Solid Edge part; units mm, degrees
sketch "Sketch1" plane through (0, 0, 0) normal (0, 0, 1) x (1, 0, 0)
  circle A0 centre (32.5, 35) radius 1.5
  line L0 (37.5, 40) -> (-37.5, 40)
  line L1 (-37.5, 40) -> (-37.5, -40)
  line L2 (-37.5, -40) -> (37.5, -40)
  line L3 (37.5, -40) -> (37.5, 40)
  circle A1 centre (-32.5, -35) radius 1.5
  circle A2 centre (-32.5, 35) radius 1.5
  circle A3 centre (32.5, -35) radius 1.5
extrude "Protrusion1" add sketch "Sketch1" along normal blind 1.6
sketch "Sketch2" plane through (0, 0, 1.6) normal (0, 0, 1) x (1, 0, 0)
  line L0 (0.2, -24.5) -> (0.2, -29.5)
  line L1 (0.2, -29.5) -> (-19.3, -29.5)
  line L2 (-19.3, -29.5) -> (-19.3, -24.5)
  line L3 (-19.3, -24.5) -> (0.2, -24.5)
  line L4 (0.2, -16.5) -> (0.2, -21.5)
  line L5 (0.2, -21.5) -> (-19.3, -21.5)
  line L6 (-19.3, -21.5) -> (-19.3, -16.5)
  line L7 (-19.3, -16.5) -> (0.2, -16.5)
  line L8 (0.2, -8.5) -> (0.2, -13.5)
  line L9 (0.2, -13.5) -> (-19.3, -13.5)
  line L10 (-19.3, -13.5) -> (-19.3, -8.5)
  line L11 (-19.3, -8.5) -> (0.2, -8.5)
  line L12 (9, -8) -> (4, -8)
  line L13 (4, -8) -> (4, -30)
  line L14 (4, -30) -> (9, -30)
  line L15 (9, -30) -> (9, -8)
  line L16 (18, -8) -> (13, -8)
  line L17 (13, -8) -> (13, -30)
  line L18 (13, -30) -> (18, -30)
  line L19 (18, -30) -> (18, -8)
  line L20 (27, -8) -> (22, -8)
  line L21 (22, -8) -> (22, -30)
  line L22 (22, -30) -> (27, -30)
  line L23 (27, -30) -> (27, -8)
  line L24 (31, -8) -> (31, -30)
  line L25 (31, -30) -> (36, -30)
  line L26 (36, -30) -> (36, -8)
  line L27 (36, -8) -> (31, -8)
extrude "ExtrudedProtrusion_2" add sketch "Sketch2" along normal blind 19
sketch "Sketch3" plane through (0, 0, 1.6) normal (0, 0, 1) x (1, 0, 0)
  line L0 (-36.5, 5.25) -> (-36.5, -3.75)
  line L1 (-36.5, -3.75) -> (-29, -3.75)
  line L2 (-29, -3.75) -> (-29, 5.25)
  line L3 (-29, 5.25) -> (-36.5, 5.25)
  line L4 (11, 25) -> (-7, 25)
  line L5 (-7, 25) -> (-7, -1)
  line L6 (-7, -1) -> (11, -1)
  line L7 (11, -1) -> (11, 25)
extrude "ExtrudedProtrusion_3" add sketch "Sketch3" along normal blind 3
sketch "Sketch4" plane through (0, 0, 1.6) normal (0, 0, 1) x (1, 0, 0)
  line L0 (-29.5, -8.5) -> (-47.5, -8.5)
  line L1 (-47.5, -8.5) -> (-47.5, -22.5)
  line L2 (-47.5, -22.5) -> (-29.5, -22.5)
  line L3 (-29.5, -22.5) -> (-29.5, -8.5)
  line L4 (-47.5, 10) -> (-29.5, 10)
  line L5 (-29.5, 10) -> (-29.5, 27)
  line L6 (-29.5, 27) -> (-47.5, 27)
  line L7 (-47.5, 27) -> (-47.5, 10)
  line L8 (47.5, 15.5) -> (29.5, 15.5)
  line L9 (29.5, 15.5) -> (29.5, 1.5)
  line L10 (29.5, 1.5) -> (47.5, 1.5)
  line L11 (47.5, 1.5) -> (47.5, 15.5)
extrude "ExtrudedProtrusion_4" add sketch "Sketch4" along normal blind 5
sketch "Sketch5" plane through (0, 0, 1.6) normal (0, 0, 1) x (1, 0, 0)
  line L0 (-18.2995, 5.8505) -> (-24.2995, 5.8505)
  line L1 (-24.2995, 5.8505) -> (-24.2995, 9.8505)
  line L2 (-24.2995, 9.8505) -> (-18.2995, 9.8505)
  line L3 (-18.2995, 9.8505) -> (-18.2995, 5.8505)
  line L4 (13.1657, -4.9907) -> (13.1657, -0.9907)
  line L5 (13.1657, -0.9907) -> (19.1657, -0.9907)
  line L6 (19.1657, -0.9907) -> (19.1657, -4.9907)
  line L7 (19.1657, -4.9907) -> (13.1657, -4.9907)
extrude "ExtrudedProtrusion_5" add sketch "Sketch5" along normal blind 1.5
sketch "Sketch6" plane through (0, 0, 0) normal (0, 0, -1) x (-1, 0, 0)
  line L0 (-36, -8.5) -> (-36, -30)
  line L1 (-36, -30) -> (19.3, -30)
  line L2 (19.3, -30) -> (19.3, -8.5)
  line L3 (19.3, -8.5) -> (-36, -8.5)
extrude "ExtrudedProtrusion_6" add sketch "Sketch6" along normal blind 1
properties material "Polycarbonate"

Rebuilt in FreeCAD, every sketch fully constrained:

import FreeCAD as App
import Part
import Sketcher

V = App.Vector

doc = App.newDocument("Part")
body = doc.addObject("PartDesign::Body", "Body")

# Sketch on XY plane
sketch1 = body.newObject("Sketcher::SketchObject", "Sketch")
sketch1.AttachmentSupport = (doc.getObject("XY_Plane"), [""])
sketch1.MapMode = "FlatFace"
sketch1.addGeometry(Part.LineSegment(V(37.5, -40, 0), V(37.5, 40, 0)), False)
sketch1.addGeometry(Part.LineSegment(V(37.5, 40, 0), V(-37.5, 40, 0)), False)
sketch1.addGeometry(Part.LineSegment(V(-37.5, 40, 0), V(-37.5, -40, 0)), False)
sketch1.addGeometry(Part.LineSegment(V(-37.5, -40, 0), V(37.5, -40, 0)), False)
sketch1.addGeometry(Part.Circle(V(-32.5, -35, 0), V(0, 0, 1), 1.5), False)
sketch1.addGeometry(Part.Circle(V(32.5, -35, 0), V(0, 0, 1), 1.5), False)
sketch1.addGeometry(Part.Circle(V(-32.5, 35, 0), V(0, 0, 1), 1.5), False)
sketch1.addGeometry(Part.Circle(V(32.5, 35, 0), V(0, 0, 1), 1.5), False)
sketch1.addConstraint(Sketcher.Constraint("Coincident", 0, 2, 1, 1))
sketch1.addConstraint(Sketcher.Constraint("Coincident", 1, 2, 2, 1))
sketch1.addConstraint(Sketcher.Constraint("Coincident", 2, 2, 3, 1))
sketch1.addConstraint(Sketcher.Constraint("Coincident", 3, 2, 0, 1))
sketch1.addConstraint(Sketcher.Constraint("Vertical", 0))
sketch1.addConstraint(Sketcher.Constraint("Horizontal", 1))
sketch1.addConstraint(Sketcher.Constraint("Vertical", 2))
sketch1.addConstraint(Sketcher.Constraint("Horizontal", 3))
sketch1.addConstraint(Sketcher.Constraint("Equal", 4, 5))
sketch1.addConstraint(Sketcher.Constraint("Equal", 5, 6))
sketch1.addConstraint(Sketcher.Constraint("Equal", 6, 7))
sketch1.addConstraint(Sketcher.Constraint("Symmetric", 5, 3, 6, 3, -1, 1))
sketch1.addConstraint(Sketcher.Constraint("Symmetric", 4, 3, 7, 3, -1, 1))
sketch1.addConstraint(Sketcher.Constraint("Symmetric", 0, 2, 2, 2, -1, 1))
sketch1.addConstraint(Sketcher.Constraint("Symmetric", 4, 3, 5, 3, -2))
sketch1.addConstraint(Sketcher.Constraint("Diameter", 4, 3.0))
sketch1.addConstraint(Sketcher.Constraint("DistanceX", 1, 2, 1, 1, 75.0))
sketch1.addConstraint(Sketcher.Constraint("DistanceY", 0, 1, 0, 2, 80.0))
sketch1.addConstraint(Sketcher.Constraint("DistanceY", 4, 3, -1, 1, 35.0))
sketch1.addConstraint(Sketcher.Constraint("DistanceX", 4, 3, 5, 3, 65.0))
pad1 = body.newObject("PartDesign::Pad", "Pad")
pad1.Profile = sketch1
pad1.Length = 1.6

# Sketch on XY plane
sketch2 = body.newObject("Sketcher::SketchObject", "Sketch001")
sketch2.AttachmentSupport = (doc.getObject("XY_Plane"), [""])
sketch2.MapMode = "FlatFace"
sketch2.AttachmentOffset = App.Placement(V(0, 0, 1.6), App.Rotation())
sketch2.addGeometry(Part.LineSegment(V(0, -30, 0), V(0, -24, 0)), False)
sketch2.addGeometry(Part.LineSegment(V(0, -24, 0), V(-19, -24, 0)), False)
sketch2.addGeometry(Part.LineSegment(V(-19, -24, 0), V(-19, -30, 0)), False)
sketch2.addGeometry(Part.LineSegment(V(-19, -30, 0), V(0, -30, 0)), False)
sketch2.addGeometry(Part.LineSegment(V(0, -22, 0), V(0, -16, 0)), False)
sketch2.addGeometry(Part.LineSegment(V(0, -16, 0), V(-19, -16, 0)), False)
sketch2.addGeometry(Part.LineSegment(V(-19, -16, 0), V(-19, -22, 0)), False)
sketch2.addGeometry(Part.LineSegment(V(-19, -22, 0), V(0, -22, 0)), False)
sketch2.addGeometry(Part.LineSegment(V(0, -14, 0), V(0, -8, 0)), False)
sketch2.addGeometry(Part.LineSegment(V(0, -8, 0), V(-19, -8, 0)), False)
sketch2.addGeometry(Part.LineSegment(V(-19, -8, 0), V(-19, -14, 0)), False)
sketch2.addGeometry(Part.LineSegment(V(-19, -14, 0), V(0, -14, 0)), False)
sketch2.addGeometry(Part.LineSegment(V(9, -30, 0), V(9, -8, 0)), False)
sketch2.addGeometry(Part.LineSegment(V(9, -8, 0), V(4, -8, 0)), False)
sketch2.addGeometry(Part.LineSegment(V(4, -8, 0), V(4, -30, 0)), False)
sketch2.addGeometry(Part.LineSegment(V(4, -30, 0), V(9, -30, 0)), False)
sketch2.addGeometry(Part.LineSegment(V(18, -30, 0), V(18, -8, 0)), False)
sketch2.addGeometry(Part.LineSegment(V(18, -8, 0), V(13, -8, 0)), False)
sketch2.addGeometry(Part.LineSegment(V(13, -8, 0), V(13, -30, 0)), False)
sketch2.addGeometry(Part.LineSegment(V(13, -30, 0), V(18, -30, 0)), False)
sketch2.addGeometry(Part.LineSegment(V(27, -30, 0), V(27, -8, 0)), False)
sketch2.addGeometry(Part.LineSegment(V(27, -8, 0), V(22, -8, 0)), False)
sketch2.addGeometry(Part.LineSegment(V(22, -8, 0), V(22, -30, 0)), False)
sketch2.addGeometry(Part.LineSegment(V(22, -30, 0), V(27, -30, 0)), False)
sketch2.addGeometry(Part.LineSegment(V(36, -8, 0), V(31, -8, 0)), False)
sketch2.addGeometry(Part.LineSegment(V(31, -8, 0), V(31, -30, 0)), False)
sketch2.addGeometry(Part.LineSegment(V(31, -30, 0), V(36, -30, 0)), False)
sketch2.addGeometry(Part.LineSegment(V(36, -30, 0), V(36, -8, 0)), False)
sketch2.addConstraint(Sketcher.Constraint("Coincident", 0, 2, 1, 1))
sketch2.addConstraint(Sketcher.Constraint("Coincident", 1, 2, 2, 1))
sketch2.addConstraint(Sketcher.Constraint("Coincident", 2, 2, 3, 1))
sketch2.addConstraint(Sketcher.Constraint("Coincident", 3, 2, 0, 1))
sketch2.addConstraint(Sketcher.Constraint("Coincident", 4, 2, 5, 1))
sketch2.addConstraint(Sketcher.Constraint("Coincident", 5, 2, 6, 1))
sketch2.addConstraint(Sketcher.Constraint("Coincident", 6, 2, 7, 1))
sketch2.addConstraint(Sketcher.Constraint("Coincident", 7, 2, 4, 1))
sketch2.addConstraint(Sketcher.Constraint("Coincident", 8, 2, 9, 1))
sketch2.addConstraint(Sketcher.Constraint("Coincident", 9, 2, 10, 1))
sketch2.addConstraint(Sketcher.Constraint("Coincident", 10, 2, 11, 1))
sketch2.addConstraint(Sketcher.Constraint("Coincident", 11, 2, 8, 1))
sketch2.addConstraint(Sketcher.Constraint("Coincident", 12, 2, 13, 1))
sketch2.addConstraint(Sketcher.Constraint("Coincident", 13, 2, 14, 1))
sketch2.addConstraint(Sketcher.Constraint("Coincident", 14, 2, 15, 1))
sketch2.addConstraint(Sketcher.Constraint("Coincident", 15, 2, 12, 1))
sketch2.addConstraint(Sketcher.Constraint("Coincident", 16, 2, 17, 1))
sketch2.addConstraint(Sketcher.Constraint("Coincident", 17, 2, 18, 1))
sketch2.addConstraint(Sketcher.Constraint("Coincident", 18, 2, 19, 1))
sketch2.addConstraint(Sketcher.Constraint("Coincident", 19, 2, 16, 1))
sketch2.addConstraint(Sketcher.Constraint("Coincident", 20, 2, 21, 1))
sketch2.addConstraint(Sketcher.Constraint("Coincident", 21, 2, 22, 1))
sketch2.addConstraint(Sketcher.Constraint("Coincident", 22, 2, 23, 1))
sketch2.addConstraint(Sketcher.Constraint("Coincident", 23, 2, 20, 1))
sketch2.addConstraint(Sketcher.Constraint("Coincident", 24, 2, 25, 1))
sketch2.addConstraint(Sketcher.Constraint("Coincident", 25, 2, 26, 1))
sketch2.addConstraint(Sketcher.Constraint("Coincident", 26, 2, 27, 1))
sketch2.addConstraint(Sketcher.Constraint("Coincident", 27, 2, 24, 1))
sketch2.addConstraint(Sketcher.Constraint("Vertical", 0))
sketch2.addConstraint(Sketcher.Constraint("Horizontal", 1))
sketch2.addConstraint(Sketcher.Constraint("Vertical", 2))
sketch2.addConstraint(Sketcher.Constraint("Horizontal", 3))
sketch2.addConstraint(Sketcher.Constraint("Vertical", 4))
sketch2.addConstraint(Sketcher.Constraint("Horizontal", 5))
sketch2.addConstraint(Sketcher.Constraint("Vertical", 6))
sketch2.addConstraint(Sketcher.Constraint("Horizontal", 7))
sketch2.addConstraint(Sketcher.Constraint("Vertical", 8))
sketch2.addConstraint(Sketcher.Constraint("Horizontal", 9))
sketch2.addConstraint(Sketcher.Constraint("Vertical", 10))
sketch2.addConstraint(Sketcher.Constraint("Horizontal", 11))
sketch2.addConstraint(Sketcher.Constraint("Vertical", 12))
sketch2.addConstraint(Sketcher.Constraint("Horizontal", 13))
sketch2.addConstraint(Sketcher.Constraint("Vertical", 14))
sketch2.addConstraint(Sketcher.Constraint("Horizontal", 15))
sketch2.addConstraint(Sketcher.Constraint("Vertical", 16))
sketch2.addConstraint(Sketcher.Constraint("Horizontal", 17))
sketch2.addConstraint(Sketcher.Constraint("Vertical", 18))
sketch2.addConstraint(Sketcher.Constraint("Horizontal", 19))
sketch2.addConstraint(Sketcher.Constraint("Vertical", 20))
sketch2.addConstraint(Sketcher.Constraint("Horizontal", 21))
sketch2.addConstraint(Sketcher.Constraint("Vertical", 22))
sketch2.addConstraint(Sketcher.Constraint("Horizontal", 23))
sketch2.addConstraint(Sketcher.Constraint("Horizontal", 24))
sketch2.addConstraint(Sketcher.Constraint("Vertical", 25))
sketch2.addConstraint(Sketcher.Constraint("Horizontal", 26))
sketch2.addConstraint(Sketcher.Constraint("Vertical", 27))
sketch2.addConstraint(Sketcher.Constraint("Horizontal", 13, 2, 16, 2))
sketch2.addConstraint(Sketcher.Constraint("Horizontal", 15, 2, 18, 2))
sketch2.addConstraint(Sketcher.Constraint("Horizontal", 17, 2, 20, 2))
sketch2.addConstraint(Sketcher.Constraint("Horizontal", 19, 2, 22, 2))
sketch2.addConstraint(Sketcher.Constraint("Horizontal", 21, 2, 24, 2))
sketch2.addConstraint(Sketcher.Constraint("Horizontal", 23, 2, 25, 2))
sketch2.addConstraint(Sketcher.Constraint("Vertical", 3, 2, 4, 2))
sketch2.addConstraint(Sketcher.Constraint("Vertical", 2, 2, 5, 2))
sketch2.addConstraint(Sketcher.Constraint("Vertical", 7, 2, 8, 2))
sketch2.addConstraint(Sketcher.Constraint("Vertical", 6, 2, 9, 2))
sketch2.addConstraint(Sketcher.Constraint("Equal", 15, 17))
sketch2.addConstraint(Sketcher.Constraint("Equal", 19, 21))
sketch2.addConstraint(Sketcher.Constraint("Equal", 23, 24))
sketch2.addConstraint(Sketcher.Constraint("Equal", 26, 0))
sketch2.addConstraint(Sketcher.Constraint("Equal", 2, 4))
sketch2.addConstraint(Sketcher.Constraint("Equal", 6, 8))
sketch2.addConstraint(Sketcher.Constraint("DistanceX", 13, 2, 13, 1, 5.0))
sketch2.addConstraint(Sketcher.Constraint("DistanceY", 12, 1, 12, 2, 22.0))
sketch2.addConstraint(Sketcher.Constraint("DistanceX", 1, 2, 1, 1, 19.5))
sketch2.addConstraint(Sketcher.Constraint("DistanceX", -1, 1, 12, 2, 9.0))
sketch2.addConstraint(Sketcher.Constraint("DistanceY", 12, 2, -1, 1, 8.0))
sketch2.addConstraint(Sketcher.Constraint("DistanceX", -1, 1, 16, 2, 18.0))
sketch2.addConstraint(Sketcher.Constraint("DistanceX", -1, 1, 20, 2, 27.0))
sketch2.addConstraint(Sketcher.Constraint("DistanceX", -1, 1, 24, 2, 31.0))
sketch2.addConstraint(Sketcher.Constraint("DistanceY", 0, 2, 4, 2, 8.0))
sketch2.addConstraint(Sketcher.Constraint("DistanceY", 4, 2, 8, 2, 8.0))
sketch2.addConstraint(Sketcher.Constraint("DistanceX", -1, 1, 0, 2, 0.2))
sketch2.addConstraint(Sketcher.Constraint("DistanceY", 0, 2, -1, 1, 24.5))
pad2 = body.newObject("PartDesign::Pad", "Pad001")
pad2.Profile = sketch2
pad2.Length = 19

# Sketch on XY plane
sketch3 = body.newObject("Sketcher::SketchObject", "Sketch002")
sketch3.AttachmentSupport = (doc.getObject("XY_Plane"), [""])
sketch3.MapMode = "FlatFace"
sketch3.AttachmentOffset = App.Placement(V(0, 0, 1.6), App.Rotation())
sketch3.addGeometry(Part.LineSegment(V(-29, 5, 0), V(-36, 5, 0)), False)
sketch3.addGeometry(Part.LineSegment(V(-36, 5, 0), V(-36, -4, 0)), False)
sketch3.addGeometry(Part.LineSegment(V(-36, -4, 0), V(-29, -4, 0)), False)
sketch3.addGeometry(Part.LineSegment(V(-29, -4, 0), V(-29, 5, 0)), False)
sketch3.addGeometry(Part.LineSegment(V(11, -1, 0), V(11, 25, 0)), False)
sketch3.addGeometry(Part.LineSegment(V(11, 25, 0), V(-7, 25, 0)), False)
sketch3.addGeometry(Part.LineSegment(V(-7, 25, 0), V(-7, -1, 0)), False)
sketch3.addGeometry(Part.LineSegment(V(-7, -1, 0), V(11, -1, 0)), False)
sketch3.addConstraint(Sketcher.Constraint("Coincident", 0, 2, 1, 1))
sketch3.addConstraint(Sketcher.Constraint("Coincident", 1, 2, 2, 1))
sketch3.addConstraint(Sketcher.Constraint("Coincident", 2, 2, 3, 1))
sketch3.addConstraint(Sketcher.Constraint("Coincident", 3, 2, 0, 1))
sketch3.addConstraint(Sketcher.Constraint("Coincident", 4, 2, 5, 1))
sketch3.addConstraint(Sketcher.Constraint("Coincident", 5, 2, 6, 1))
sketch3.addConstraint(Sketcher.Constraint("Coincident", 6, 2, 7, 1))
sketch3.addConstraint(Sketcher.Constraint("Coincident", 7, 2, 4, 1))
sketch3.addConstraint(Sketcher.Constraint("Horizontal", 0))
sketch3.addConstraint(Sketcher.Constraint("Vertical", 1))
sketch3.addConstraint(Sketcher.Constraint("Horizontal", 2))
sketch3.addConstraint(Sketcher.Constraint("Vertical", 3))
sketch3.addConstraint(Sketcher.Constraint("Vertical", 4))
sketch3.addConstraint(Sketcher.Constraint("Horizontal", 5))
sketch3.addConstraint(Sketcher.Constraint("Vertical", 6))
sketch3.addConstraint(Sketcher.Constraint("Horizontal", 7))
sketch3.addConstraint(Sketcher.Constraint("DistanceX", 5, 2, 5, 1, 18.0))
sketch3.addConstraint(Sketcher.Constraint("DistanceY", 1, 2, 1, 1, 9.0))
sketch3.addConstraint(Sketcher.Constraint("DistanceY", 4, 1, 4, 2, 26.0))
sketch3.addConstraint(Sketcher.Constraint("DistanceX", 0, 2, 0, 1, 7.5))
sketch3.addConstraint(Sketcher.Constraint("DistanceX", 2, 2, -1, 1, 29.0))
sketch3.addConstraint(Sketcher.Constraint("DistanceX", -1, 1, 4, 2, 11.0))
sketch3.addConstraint(Sketcher.Constraint("DistanceY", -1, 1, 4, 2, 25.0))
sketch3.addConstraint(Sketcher.Constraint("DistanceY", -1, 1, 0, 2, 5.25))
pad3 = body.newObject("PartDesign::Pad", "Pad002")
pad3.Profile = sketch3
pad3.Length = 3

# Sketch on XY plane
sketch4 = body.newObject("Sketcher::SketchObject", "Sketch003")
sketch4.AttachmentSupport = (doc.getObject("XY_Plane"), [""])
sketch4.MapMode = "FlatFace"
sketch4.AttachmentOffset = App.Placement(V(0, 0, 1.6), App.Rotation())
sketch4.addGeometry(Part.LineSegment(V(-30, -22, 0), V(-30, -8, 0)), False)
sketch4.addGeometry(Part.LineSegment(V(-30, -8, 0), V(-48, -8, 0)), False)
sketch4.addGeometry(Part.LineSegment(V(-48, -8, 0), V(-48, -22, 0)), False)
sketch4.addGeometry(Part.LineSegment(V(-48, -22, 0), V(-30, -22, 0)), False)
sketch4.addGeometry(Part.LineSegment(V(-48, 27, 0), V(-48, 10, 0)), False)
sketch4.addGeometry(Part.LineSegment(V(-48, 10, 0), V(-30, 10, 0)), False)
sketch4.addGeometry(Part.LineSegment(V(-30, 10, 0), V(-30, 27, 0)), False)
sketch4.addGeometry(Part.LineSegment(V(-30, 27, 0), V(-48, 27, 0)), False)
sketch4.addGeometry(Part.LineSegment(V(48, 2, 0), V(48, 16, 0)), False)
sketch4.addGeometry(Part.LineSegment(V(48, 16, 0), V(30, 16, 0)), False)
sketch4.addGeometry(Part.LineSegment(V(30, 16, 0), V(30, 2, 0)), False)
sketch4.addGeometry(Part.LineSegment(V(30, 2, 0), V(48, 2, 0)), False)
sketch4.addConstraint(Sketcher.Constraint("Coincident", 0, 2, 1, 1))
sketch4.addConstraint(Sketcher.Constraint("Coincident", 1, 2, 2, 1))
sketch4.addConstraint(Sketcher.Constraint("Coincident", 2, 2, 3, 1))
sketch4.addConstraint(Sketcher.Constraint("Coincident", 3, 2, 0, 1))
sketch4.addConstraint(Sketcher.Constraint("Coincident", 4, 2, 5, 1))
sketch4.addConstraint(Sketcher.Constraint("Coincident", 5, 2, 6, 1))
sketch4.addConstraint(Sketcher.Constraint("Coincident", 6, 2, 7, 1))
sketch4.addConstraint(Sketcher.Constraint("Coincident", 7, 2, 4, 1))
sketch4.addConstraint(Sketcher.Constraint("Coincident", 8, 2, 9, 1))
sketch4.addConstraint(Sketcher.Constraint("Coincident", 9, 2, 10, 1))
sketch4.addConstraint(Sketcher.Constraint("Coincident", 10, 2, 11, 1))
sketch4.addConstraint(Sketcher.Constraint("Coincident", 11, 2, 8, 1))
sketch4.addConstraint(Sketcher.Constraint("Vertical", 0))
sketch4.addConstraint(Sketcher.Constraint("Horizontal", 1))
sketch4.addConstraint(Sketcher.Constraint("Vertical", 2))
sketch4.addConstraint(Sketcher.Constraint("Horizontal", 3))
sketch4.addConstraint(Sketcher.Constraint("Vertical", 4))
sketch4.addConstraint(Sketcher.Constraint("Horizontal", 5))
sketch4.addConstraint(Sketcher.Constraint("Vertical", 6))
sketch4.addConstraint(Sketcher.Constraint("Horizontal", 7))
sketch4.addConstraint(Sketcher.Constraint("Vertical", 8))
sketch4.addConstraint(Sketcher.Constraint("Horizontal", 9))
sketch4.addConstraint(Sketcher.Constraint("Vertical", 10))
sketch4.addConstraint(Sketcher.Constraint("Horizontal", 11))
sketch4.addConstraint(Sketcher.Constraint("Vertical", 2, 2, 4, 2))
sketch4.addConstraint(Sketcher.Constraint("Vertical", 3, 2, 5, 2))
sketch4.addConstraint(Sketcher.Constraint("Equal", 7, 9))
sketch4.addConstraint(Sketcher.Constraint("Equal", 2, 8))
sketch4.addConstraint(Sketcher.Constraint("DistanceX", 1, 2, 1, 1, 18.0))
sketch4.addConstraint(Sketcher.Constraint("DistanceY", 0, 1, 0, 2, 14.0))
sketch4.addConstraint(Sketcher.Constraint("DistanceY", 4, 2, 4, 1, 17.0))
sketch4.addConstraint(Sketcher.Constraint("DistanceY", -1, 1, 4, 2, 10.0))
sketch4.addConstraint(Sketcher.Constraint("DistanceX", 5, 2, 8, 2, 77.0))
sketch4.addConstraint(Sketcher.Constraint("DistanceY", 0, 2, 8, 2, 24.0))
sketch4.addConstraint(Sketcher.Constraint("DistanceX", 0, 2, -1, 1, 29.5))
sketch4.addConstraint(Sketcher.Constraint("DistanceY", 0, 2, -1, 1, 8.5))
pad4 = body.newObject("PartDesign::Pad", "Pad003")
pad4.Profile = sketch4
pad4.Length = 5

# Sketch on XY plane
sketch5 = body.newObject("Sketcher::SketchObject", "Sketch004")
sketch5.AttachmentSupport = (doc.getObject("XY_Plane"), [""])
sketch5.MapMode = "FlatFace"
sketch5.AttachmentOffset = App.Placement(V(0, 0, 1.6), App.Rotation())
sketch5.addGeometry(Part.LineSegment(V(-24.3, 5.9, 0), V(-18.3, 5.9, 0)), False)
sketch5.addGeometry(Part.LineSegment(V(-18.3, 5.9, 0), V(-18.3, 9.9, 0)), False)
sketch5.addGeometry(Part.LineSegment(V(-18.3, 9.9, 0), V(-24.3, 9.9, 0)), False)
sketch5.addGeometry(Part.LineSegment(V(-24.3, 9.9, 0), V(-24.3, 5.9, 0)), False)
sketch5.addGeometry(Part.LineSegment(V(13.2, -1, 0), V(13.2, -5, 0)), False)
sketch5.addGeometry(Part.LineSegment(V(13.2, -5, 0), V(19.2, -5, 0)), False)
sketch5.addGeometry(Part.LineSegment(V(19.2, -5, 0), V(19.2, -1, 0)), False)
sketch5.addGeometry(Part.LineSegment(V(19.2, -1, 0), V(13.2, -1, 0)), False)
sketch5.addConstraint(Sketcher.Constraint("Coincident", 0, 2, 1, 1))
sketch5.addConstraint(Sketcher.Constraint("Coincident", 1, 2, 2, 1))
sketch5.addConstraint(Sketcher.Constraint("Coincident", 2, 2, 3, 1))
sketch5.addConstraint(Sketcher.Constraint("Coincident", 3, 2, 0, 1))
sketch5.addConstraint(Sketcher.Constraint("Coincident", 4, 2, 5, 1))
sketch5.addConstraint(Sketcher.Constraint("Coincident", 5, 2, 6, 1))
sketch5.addConstraint(Sketcher.Constraint("Coincident", 6, 2, 7, 1))
sketch5.addConstraint(Sketcher.Constraint("Coincident", 7, 2, 4, 1))
sketch5.addConstraint(Sketcher.Constraint("Horizontal", 0))
sketch5.addConstraint(Sketcher.Constraint("Vertical", 1))
sketch5.addConstraint(Sketcher.Constraint("Horizontal", 2))
sketch5.addConstraint(Sketcher.Constraint("Vertical", 3))
sketch5.addConstraint(Sketcher.Constraint("Vertical", 4))
sketch5.addConstraint(Sketcher.Constraint("Horizontal", 5))
sketch5.addConstraint(Sketcher.Constraint("Vertical", 6))
sketch5.addConstraint(Sketcher.Constraint("Horizontal", 7))
sketch5.addConstraint(Sketcher.Constraint("Equal", 2, 5))
sketch5.addConstraint(Sketcher.Constraint("Equal", 3, 4))
sketch5.addConstraint(Sketcher.Constraint("DistanceX", 0, 1, 0, 2, 6.0))
sketch5.addConstraint(Sketcher.Constraint("DistanceY", 1, 1, 1, 2, 4.0))
sketch5.addConstraint(Sketcher.Constraint("DistanceX", 0, 2, -1, 1, 18.2995))
sketch5.addConstraint(Sketcher.Constraint("DistanceY", -1, 1, 0, 2, 5.8505))
sketch5.addConstraint(Sketcher.Constraint("DistanceX", -1, 1, 4, 2, 13.1657))
sketch5.addConstraint(Sketcher.Constraint("DistanceY", 4, 2, -1, 1, 4.9907))
pad5 = body.newObject("PartDesign::Pad", "Pad004")
pad5.Profile = sketch5
pad5.Length = 1.5

# Sketch on XY plane
sketch6 = body.newObject("Sketcher::SketchObject", "Sketch005")
sketch6.AttachmentSupport = (doc.getObject("XY_Plane"), [""])
sketch6.MapMode = "FlatFace"
sketch6.addGeometry(Part.LineSegment(V(-19, -8, 0), V(36, -8, 0)), False)
sketch6.addGeometry(Part.LineSegment(V(36, -8, 0), V(36, -30, 0)), False)
sketch6.addGeometry(Part.LineSegment(V(36, -30, 0), V(-19, -30, 0)), False)
sketch6.addGeometry(Part.LineSegment(V(-19, -30, 0), V(-19, -8, 0)), False)
sketch6.addConstraint(Sketcher.Constraint("Coincident", 0, 2, 1, 1))
sketch6.addConstraint(Sketcher.Constraint("Coincident", 1, 2, 2, 1))
sketch6.addConstraint(Sketcher.Constraint("Coincident", 2, 2, 3, 1))
sketch6.addConstraint(Sketcher.Constraint("Coincident", 3, 2, 0, 1))
sketch6.addConstraint(Sketcher.Constraint("Horizontal", 0))
sketch6.addConstraint(Sketcher.Constraint("Vertical", 1))
sketch6.addConstraint(Sketcher.Constraint("Horizontal", 2))
sketch6.addConstraint(Sketcher.Constraint("Vertical", 3))
sketch6.addConstraint(Sketcher.Constraint("DistanceX", 0, 1, 0, 2, 55.3))
sketch6.addConstraint(Sketcher.Constraint("DistanceY", 1, 2, 1, 1, 21.5))
sketch6.addConstraint(Sketcher.Constraint("DistanceX", -1, 1, 0, 2, 36.0))
sketch6.addConstraint(Sketcher.Constraint("DistanceY", 1, 2, -1, 1, 30.0))
pad6 = body.newObject("PartDesign::Pad", "Pad005")
pad6.Profile = sketch6
pad6.Length = 1
pad6.Reversed = True

doc.recompute()
